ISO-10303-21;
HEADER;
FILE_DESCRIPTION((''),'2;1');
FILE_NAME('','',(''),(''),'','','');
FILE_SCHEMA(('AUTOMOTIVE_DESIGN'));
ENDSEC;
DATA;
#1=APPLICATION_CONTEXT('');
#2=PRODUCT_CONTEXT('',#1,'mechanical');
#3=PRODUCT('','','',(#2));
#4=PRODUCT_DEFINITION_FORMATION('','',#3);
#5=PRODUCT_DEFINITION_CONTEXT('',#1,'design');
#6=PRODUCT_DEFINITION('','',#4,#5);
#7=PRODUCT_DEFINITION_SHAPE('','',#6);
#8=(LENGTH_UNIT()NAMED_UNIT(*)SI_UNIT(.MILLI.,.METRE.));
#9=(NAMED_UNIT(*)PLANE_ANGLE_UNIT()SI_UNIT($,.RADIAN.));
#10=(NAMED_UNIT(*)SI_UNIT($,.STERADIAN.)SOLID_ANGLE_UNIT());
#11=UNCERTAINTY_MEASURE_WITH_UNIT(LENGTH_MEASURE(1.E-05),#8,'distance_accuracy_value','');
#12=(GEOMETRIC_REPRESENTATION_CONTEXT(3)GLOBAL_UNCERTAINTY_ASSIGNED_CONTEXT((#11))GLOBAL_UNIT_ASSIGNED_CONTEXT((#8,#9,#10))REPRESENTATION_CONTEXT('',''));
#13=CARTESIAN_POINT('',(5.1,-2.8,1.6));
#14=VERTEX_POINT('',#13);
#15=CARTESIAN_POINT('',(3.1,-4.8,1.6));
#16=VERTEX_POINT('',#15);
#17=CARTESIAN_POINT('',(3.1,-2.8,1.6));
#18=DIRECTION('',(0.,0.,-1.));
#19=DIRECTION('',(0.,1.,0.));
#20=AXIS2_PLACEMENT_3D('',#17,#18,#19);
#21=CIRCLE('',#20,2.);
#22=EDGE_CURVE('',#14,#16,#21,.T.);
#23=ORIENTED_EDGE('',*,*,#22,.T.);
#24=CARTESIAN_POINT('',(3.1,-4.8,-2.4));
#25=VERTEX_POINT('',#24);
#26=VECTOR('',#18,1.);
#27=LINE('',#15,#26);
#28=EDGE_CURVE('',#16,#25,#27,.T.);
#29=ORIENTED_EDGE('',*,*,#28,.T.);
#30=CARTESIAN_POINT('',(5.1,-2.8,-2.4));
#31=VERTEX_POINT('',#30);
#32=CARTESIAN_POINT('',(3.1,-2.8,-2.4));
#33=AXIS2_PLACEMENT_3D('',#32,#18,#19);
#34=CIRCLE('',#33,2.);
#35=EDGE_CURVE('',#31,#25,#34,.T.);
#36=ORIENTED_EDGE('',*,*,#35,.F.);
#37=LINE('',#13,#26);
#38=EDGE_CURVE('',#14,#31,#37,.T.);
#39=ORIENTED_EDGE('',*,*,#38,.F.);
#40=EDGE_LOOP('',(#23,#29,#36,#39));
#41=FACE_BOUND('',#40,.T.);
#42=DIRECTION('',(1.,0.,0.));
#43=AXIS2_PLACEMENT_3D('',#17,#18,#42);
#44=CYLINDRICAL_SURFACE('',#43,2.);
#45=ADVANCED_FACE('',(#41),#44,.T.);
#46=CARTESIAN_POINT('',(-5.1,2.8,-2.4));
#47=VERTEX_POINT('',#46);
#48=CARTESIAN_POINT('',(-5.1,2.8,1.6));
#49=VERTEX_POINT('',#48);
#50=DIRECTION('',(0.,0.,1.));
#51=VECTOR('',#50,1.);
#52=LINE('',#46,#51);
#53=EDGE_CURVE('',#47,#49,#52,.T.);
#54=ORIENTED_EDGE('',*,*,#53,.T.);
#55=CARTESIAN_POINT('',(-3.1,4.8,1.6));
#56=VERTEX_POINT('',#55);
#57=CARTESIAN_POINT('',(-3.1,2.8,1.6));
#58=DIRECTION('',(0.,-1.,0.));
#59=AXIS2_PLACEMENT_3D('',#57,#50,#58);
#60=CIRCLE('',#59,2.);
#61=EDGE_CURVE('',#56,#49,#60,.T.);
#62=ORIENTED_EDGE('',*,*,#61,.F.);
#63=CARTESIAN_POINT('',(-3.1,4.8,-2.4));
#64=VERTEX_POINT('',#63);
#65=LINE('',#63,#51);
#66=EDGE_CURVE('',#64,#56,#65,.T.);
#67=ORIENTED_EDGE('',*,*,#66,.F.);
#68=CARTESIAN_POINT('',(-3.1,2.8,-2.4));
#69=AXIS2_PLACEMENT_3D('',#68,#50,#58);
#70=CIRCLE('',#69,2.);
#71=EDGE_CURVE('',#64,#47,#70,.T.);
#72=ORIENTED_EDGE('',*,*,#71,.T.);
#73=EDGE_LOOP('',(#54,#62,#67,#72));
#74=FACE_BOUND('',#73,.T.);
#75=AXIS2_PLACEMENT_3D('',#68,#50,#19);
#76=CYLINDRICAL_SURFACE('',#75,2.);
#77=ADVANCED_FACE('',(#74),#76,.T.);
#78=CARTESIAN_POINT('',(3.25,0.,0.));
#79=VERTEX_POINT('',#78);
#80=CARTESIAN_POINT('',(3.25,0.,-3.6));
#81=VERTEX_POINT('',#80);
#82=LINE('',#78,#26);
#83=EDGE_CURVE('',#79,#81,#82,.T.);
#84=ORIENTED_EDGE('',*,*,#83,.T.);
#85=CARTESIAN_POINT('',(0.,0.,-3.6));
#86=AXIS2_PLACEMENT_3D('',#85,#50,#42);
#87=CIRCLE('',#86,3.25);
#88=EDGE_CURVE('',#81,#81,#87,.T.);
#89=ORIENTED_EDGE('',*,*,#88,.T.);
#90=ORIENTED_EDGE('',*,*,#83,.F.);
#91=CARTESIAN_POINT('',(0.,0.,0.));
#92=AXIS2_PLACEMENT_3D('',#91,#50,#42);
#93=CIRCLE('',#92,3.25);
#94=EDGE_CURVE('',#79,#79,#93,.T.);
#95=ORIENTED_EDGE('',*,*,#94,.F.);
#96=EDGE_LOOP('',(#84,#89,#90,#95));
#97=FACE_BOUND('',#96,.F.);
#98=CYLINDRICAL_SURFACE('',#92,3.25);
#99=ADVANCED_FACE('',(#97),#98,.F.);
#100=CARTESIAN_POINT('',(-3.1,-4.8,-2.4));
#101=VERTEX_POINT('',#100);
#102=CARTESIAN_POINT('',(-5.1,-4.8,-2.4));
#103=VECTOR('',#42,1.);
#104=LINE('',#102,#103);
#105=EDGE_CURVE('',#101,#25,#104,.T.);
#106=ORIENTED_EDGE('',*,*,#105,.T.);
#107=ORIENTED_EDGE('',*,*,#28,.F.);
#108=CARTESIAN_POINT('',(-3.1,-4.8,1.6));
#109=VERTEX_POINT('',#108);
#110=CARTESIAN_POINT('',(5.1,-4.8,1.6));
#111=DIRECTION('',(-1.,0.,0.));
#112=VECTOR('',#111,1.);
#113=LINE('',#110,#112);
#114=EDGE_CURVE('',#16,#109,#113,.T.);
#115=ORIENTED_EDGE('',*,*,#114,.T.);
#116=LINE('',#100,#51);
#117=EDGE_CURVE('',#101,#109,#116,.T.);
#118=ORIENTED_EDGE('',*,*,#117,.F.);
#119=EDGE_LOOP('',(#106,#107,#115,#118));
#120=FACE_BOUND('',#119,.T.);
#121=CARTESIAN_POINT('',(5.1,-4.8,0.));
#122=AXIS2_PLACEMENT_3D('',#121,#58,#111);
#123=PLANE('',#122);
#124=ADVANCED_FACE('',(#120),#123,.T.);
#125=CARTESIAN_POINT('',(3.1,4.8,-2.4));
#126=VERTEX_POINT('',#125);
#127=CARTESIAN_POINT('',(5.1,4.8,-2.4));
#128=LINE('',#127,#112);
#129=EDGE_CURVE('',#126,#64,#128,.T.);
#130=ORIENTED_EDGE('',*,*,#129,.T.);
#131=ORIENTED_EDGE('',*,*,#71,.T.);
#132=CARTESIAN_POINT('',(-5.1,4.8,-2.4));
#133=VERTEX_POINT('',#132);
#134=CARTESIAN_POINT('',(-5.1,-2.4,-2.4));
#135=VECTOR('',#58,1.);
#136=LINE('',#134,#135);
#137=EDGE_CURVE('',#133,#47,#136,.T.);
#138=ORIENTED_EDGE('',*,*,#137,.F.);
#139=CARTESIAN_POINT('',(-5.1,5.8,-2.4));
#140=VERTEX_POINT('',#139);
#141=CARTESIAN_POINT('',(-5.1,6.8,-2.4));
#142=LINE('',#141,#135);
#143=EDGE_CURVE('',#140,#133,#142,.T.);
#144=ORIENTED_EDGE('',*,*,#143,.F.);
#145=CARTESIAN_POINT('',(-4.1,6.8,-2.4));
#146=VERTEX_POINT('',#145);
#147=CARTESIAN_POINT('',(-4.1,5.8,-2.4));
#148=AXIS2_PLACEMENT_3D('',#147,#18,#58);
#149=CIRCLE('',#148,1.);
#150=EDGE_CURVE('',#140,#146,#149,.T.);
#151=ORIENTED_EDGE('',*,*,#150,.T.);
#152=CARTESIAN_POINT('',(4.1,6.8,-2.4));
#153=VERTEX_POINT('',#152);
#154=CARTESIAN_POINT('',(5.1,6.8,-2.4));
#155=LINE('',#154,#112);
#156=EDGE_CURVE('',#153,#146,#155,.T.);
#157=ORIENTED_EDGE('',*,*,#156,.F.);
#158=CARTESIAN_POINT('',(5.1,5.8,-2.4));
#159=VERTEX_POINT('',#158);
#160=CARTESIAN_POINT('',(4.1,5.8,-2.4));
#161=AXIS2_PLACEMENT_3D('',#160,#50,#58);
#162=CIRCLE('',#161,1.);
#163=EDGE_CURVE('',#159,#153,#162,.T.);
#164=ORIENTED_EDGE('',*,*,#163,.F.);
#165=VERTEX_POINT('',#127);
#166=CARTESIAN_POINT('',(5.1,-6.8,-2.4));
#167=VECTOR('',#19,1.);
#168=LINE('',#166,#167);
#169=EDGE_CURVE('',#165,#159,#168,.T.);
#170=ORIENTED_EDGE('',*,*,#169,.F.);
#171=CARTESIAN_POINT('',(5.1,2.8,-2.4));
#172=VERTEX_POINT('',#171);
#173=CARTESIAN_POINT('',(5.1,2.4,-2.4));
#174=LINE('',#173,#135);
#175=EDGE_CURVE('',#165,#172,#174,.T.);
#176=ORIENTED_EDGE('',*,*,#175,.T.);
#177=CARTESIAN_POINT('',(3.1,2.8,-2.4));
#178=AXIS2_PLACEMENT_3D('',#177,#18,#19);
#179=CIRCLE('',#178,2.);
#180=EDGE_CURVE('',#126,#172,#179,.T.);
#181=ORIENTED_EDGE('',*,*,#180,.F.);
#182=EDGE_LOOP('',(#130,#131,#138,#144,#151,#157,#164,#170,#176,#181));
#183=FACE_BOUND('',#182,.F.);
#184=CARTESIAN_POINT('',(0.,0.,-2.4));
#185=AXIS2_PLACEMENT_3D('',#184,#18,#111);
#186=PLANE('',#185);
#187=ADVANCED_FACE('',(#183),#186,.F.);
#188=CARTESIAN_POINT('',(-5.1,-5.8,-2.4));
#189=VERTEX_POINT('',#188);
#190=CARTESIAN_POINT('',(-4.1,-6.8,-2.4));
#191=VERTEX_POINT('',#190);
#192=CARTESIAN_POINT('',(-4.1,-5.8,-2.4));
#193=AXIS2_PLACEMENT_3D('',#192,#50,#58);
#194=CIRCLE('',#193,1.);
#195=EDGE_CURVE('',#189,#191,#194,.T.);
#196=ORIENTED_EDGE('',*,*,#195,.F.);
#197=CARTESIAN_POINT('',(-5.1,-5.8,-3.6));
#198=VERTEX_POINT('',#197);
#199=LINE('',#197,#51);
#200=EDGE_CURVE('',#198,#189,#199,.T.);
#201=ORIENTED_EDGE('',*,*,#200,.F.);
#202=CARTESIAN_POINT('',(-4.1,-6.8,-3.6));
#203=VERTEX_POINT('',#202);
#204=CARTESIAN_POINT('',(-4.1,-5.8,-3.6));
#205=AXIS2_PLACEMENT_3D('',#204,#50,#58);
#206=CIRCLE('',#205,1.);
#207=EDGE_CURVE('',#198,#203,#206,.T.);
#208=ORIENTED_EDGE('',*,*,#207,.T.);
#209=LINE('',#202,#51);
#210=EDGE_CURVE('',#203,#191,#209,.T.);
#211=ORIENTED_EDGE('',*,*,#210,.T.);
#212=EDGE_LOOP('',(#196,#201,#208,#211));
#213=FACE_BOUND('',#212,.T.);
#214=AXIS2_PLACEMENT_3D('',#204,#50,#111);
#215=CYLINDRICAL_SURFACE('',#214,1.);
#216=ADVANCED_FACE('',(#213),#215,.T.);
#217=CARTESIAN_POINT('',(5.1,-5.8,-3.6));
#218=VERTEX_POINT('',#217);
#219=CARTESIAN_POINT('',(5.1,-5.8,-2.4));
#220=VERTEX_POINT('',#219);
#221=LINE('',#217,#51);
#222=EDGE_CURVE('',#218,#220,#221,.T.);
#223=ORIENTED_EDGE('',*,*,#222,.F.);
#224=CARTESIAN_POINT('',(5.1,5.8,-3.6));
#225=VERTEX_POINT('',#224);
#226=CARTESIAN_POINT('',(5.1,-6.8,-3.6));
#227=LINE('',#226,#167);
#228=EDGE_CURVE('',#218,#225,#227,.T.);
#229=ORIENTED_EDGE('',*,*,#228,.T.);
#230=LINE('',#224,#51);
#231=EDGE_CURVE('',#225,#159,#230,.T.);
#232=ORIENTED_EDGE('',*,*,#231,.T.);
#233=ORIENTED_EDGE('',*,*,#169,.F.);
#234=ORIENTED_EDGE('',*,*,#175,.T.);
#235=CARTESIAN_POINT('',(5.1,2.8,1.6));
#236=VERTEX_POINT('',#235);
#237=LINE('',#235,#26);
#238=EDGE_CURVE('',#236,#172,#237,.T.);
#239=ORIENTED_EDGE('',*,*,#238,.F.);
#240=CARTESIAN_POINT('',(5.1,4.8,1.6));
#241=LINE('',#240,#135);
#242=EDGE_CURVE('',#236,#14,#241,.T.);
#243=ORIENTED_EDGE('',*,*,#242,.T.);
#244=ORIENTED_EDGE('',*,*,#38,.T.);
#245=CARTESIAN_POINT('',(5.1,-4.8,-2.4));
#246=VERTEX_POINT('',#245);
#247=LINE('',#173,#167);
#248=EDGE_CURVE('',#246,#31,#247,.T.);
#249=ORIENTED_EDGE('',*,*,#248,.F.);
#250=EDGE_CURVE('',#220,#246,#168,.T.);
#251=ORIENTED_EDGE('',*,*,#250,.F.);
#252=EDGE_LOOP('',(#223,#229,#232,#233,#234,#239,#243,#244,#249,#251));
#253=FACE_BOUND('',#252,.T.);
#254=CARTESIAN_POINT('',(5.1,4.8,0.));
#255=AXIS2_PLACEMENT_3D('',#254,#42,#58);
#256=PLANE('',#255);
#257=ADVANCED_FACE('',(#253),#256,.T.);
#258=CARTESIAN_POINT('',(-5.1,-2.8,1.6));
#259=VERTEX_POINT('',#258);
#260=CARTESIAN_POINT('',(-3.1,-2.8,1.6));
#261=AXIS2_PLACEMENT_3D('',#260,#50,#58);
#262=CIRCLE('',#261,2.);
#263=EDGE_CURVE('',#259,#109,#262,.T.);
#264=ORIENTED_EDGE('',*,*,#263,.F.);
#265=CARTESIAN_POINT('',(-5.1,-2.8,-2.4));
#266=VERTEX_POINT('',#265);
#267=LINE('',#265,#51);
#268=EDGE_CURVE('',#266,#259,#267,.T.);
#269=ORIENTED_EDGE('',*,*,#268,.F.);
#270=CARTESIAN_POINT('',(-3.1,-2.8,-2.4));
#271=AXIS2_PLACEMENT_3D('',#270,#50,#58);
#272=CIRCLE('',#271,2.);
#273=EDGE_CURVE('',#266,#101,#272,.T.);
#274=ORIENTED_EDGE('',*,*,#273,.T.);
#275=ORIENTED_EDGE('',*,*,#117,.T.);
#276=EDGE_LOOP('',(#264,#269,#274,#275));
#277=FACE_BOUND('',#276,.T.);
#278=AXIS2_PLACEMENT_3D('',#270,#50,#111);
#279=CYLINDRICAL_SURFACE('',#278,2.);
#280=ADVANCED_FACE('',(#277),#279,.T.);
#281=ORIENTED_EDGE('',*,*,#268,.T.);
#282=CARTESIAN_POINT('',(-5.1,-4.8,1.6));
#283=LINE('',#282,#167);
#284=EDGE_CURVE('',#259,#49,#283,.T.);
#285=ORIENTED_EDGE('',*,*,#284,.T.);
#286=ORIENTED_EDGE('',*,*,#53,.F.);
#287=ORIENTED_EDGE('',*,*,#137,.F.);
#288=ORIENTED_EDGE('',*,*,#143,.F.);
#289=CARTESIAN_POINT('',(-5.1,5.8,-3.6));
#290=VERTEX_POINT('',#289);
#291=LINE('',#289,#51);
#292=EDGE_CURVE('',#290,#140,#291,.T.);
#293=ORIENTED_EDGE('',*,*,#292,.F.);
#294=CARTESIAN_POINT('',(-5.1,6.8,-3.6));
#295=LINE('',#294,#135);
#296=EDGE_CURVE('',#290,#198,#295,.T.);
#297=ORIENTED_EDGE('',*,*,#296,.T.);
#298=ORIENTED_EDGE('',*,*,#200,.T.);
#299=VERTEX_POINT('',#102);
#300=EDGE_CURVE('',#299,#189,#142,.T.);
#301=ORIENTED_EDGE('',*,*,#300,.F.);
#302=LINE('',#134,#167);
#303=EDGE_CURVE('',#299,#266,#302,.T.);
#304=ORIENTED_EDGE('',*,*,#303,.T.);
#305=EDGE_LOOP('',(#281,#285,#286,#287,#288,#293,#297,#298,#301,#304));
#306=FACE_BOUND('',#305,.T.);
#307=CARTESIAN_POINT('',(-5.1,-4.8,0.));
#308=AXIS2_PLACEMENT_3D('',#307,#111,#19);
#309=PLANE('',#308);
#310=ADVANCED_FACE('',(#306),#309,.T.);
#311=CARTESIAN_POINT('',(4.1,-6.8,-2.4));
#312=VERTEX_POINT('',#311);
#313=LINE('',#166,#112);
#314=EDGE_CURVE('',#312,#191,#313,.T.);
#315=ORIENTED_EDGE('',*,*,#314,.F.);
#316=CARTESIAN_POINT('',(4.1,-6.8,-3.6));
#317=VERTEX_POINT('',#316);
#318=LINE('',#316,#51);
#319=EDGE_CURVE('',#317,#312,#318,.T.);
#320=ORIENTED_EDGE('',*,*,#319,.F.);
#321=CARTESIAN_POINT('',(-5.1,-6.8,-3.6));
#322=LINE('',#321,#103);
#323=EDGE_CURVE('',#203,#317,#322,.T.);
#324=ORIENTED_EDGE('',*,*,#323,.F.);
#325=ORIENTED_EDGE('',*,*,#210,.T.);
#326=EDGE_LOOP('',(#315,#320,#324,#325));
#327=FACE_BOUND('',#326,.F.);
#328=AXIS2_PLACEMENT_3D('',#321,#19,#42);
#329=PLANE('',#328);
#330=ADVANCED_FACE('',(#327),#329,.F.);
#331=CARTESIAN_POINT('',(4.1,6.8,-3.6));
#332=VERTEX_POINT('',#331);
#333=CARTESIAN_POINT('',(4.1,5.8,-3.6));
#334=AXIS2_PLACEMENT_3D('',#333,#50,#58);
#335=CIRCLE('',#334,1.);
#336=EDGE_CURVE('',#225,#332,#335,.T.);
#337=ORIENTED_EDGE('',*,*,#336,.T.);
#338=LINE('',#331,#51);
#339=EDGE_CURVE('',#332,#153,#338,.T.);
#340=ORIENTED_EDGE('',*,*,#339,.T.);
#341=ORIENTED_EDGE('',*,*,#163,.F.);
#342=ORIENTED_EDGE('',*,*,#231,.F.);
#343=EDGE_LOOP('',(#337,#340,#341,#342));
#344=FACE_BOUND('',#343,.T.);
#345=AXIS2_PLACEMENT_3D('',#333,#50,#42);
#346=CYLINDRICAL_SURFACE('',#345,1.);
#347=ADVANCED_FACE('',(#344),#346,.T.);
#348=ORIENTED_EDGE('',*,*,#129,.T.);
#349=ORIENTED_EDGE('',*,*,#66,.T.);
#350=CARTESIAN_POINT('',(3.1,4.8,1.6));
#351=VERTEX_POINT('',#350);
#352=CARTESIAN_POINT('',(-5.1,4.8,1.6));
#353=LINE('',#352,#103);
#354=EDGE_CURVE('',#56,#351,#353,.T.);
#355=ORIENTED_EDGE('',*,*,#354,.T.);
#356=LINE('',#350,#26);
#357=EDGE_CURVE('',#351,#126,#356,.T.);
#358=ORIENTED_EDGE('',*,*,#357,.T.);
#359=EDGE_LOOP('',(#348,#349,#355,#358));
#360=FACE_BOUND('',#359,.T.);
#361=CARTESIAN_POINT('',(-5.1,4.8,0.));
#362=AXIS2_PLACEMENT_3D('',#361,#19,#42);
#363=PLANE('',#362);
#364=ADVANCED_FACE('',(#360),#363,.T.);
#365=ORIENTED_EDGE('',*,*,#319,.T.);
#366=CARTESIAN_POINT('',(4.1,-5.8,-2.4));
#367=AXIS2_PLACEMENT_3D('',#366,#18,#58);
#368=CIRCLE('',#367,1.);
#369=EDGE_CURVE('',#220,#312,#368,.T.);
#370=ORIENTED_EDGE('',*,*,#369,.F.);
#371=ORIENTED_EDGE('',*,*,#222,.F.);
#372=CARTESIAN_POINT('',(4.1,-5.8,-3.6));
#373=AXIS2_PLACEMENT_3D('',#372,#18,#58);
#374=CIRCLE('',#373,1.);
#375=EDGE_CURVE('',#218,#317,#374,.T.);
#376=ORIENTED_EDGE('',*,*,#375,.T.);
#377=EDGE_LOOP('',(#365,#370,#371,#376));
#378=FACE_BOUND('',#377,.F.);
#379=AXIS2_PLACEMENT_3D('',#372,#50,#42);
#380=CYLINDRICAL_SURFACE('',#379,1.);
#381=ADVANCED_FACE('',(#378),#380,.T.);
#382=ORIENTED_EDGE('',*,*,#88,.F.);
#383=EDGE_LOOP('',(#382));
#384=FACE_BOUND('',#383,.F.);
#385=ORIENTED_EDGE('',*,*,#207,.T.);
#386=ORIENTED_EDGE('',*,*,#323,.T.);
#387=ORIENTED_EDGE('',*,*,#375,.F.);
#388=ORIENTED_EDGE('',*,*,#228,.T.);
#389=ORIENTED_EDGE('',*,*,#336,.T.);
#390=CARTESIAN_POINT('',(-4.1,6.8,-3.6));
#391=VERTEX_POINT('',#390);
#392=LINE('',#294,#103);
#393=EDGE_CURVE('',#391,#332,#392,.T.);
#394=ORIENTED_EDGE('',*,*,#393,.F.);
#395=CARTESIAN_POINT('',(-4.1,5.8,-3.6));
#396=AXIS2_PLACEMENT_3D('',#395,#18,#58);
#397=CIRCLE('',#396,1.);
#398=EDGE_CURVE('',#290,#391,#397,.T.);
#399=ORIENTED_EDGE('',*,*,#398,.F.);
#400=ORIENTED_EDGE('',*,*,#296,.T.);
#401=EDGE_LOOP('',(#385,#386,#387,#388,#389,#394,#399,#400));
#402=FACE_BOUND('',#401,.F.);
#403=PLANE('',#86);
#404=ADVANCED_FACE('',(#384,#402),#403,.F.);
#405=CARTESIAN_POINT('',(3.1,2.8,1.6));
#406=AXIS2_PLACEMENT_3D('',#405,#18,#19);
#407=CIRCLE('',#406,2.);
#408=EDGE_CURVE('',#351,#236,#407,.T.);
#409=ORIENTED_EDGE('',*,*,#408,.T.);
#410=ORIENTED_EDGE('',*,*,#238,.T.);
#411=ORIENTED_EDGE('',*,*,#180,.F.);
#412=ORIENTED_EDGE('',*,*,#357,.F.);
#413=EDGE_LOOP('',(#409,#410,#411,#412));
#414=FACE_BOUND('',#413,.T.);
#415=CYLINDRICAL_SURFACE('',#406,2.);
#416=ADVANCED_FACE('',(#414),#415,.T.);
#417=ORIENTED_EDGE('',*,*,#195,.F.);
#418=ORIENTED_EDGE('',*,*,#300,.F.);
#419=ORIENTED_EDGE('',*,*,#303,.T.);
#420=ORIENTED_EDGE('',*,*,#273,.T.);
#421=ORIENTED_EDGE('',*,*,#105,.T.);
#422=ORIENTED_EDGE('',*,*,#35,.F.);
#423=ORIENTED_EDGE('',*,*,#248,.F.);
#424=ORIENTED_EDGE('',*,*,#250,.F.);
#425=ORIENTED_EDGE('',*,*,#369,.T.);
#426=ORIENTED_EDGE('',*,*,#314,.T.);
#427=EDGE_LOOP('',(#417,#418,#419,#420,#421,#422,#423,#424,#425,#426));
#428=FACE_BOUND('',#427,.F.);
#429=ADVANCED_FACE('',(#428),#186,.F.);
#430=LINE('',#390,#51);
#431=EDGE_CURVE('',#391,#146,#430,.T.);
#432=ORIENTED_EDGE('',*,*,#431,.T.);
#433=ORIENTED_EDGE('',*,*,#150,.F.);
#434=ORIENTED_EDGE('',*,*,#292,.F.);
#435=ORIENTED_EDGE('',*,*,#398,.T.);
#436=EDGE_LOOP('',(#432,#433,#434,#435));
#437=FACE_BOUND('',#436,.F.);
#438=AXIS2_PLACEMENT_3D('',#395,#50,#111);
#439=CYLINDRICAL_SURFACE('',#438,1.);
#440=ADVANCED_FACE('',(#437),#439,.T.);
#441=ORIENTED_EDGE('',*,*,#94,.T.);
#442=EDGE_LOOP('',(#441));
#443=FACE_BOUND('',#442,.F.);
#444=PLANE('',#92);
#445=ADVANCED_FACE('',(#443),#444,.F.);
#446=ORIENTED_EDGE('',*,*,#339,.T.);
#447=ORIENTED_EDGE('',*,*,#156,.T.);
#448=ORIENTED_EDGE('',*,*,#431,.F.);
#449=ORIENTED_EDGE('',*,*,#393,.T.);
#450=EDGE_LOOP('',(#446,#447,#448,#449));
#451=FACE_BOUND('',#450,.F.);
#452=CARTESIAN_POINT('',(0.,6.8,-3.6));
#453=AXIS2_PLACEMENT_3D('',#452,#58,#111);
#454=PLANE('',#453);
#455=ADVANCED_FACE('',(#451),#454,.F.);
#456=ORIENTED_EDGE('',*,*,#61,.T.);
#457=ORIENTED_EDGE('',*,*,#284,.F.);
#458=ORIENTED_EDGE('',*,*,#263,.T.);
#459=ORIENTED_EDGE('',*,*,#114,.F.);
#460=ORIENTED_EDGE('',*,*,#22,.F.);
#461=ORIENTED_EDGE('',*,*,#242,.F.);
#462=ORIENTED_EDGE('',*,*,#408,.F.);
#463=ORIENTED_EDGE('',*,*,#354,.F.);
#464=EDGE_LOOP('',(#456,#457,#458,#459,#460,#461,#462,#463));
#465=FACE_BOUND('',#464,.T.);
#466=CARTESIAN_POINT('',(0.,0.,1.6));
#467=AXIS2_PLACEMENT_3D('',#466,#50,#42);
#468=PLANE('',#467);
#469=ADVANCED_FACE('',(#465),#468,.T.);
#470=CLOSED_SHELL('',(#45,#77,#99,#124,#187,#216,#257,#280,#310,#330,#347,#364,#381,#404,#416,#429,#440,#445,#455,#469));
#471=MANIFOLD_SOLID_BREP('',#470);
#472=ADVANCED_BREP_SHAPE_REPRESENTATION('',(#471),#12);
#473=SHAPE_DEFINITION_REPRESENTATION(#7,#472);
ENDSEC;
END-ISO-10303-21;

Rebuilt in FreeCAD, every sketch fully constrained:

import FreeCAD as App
import Part
import Sketcher


def edges_at(feature, points):
    """Names of the edges that pass closest to the given points."""
    edges = feature.Shape.Edges
    near = lambda p: min(range(len(edges)), key=lambda i: edges[i].distToShape(Part.Vertex(*p))[0])
    return sorted({f"Edge{near(p) + 1}" for p in points})


def add_polygon(sketch, points):
    """Adds a closed chain of lines whose ends are joined by coincident constraints."""
    first, n = sketch.GeometryCount, len(points)
    for a, b in zip(points, points[1:] + points[:1]):
        sketch.addGeometry(Part.LineSegment(App.Vector(*a, 0), App.Vector(*b, 0)), False)
    for i in range(n):
        sketch.addConstraint(Sketcher.Constraint("Coincident", first + i, 2, first + (i + 1) % n, 1))

doc = App.newDocument("Part")
body = doc.addObject("PartDesign::Body", "Body")

# Sketch on XY plane
sketch1 = body.newObject("Sketcher::SketchObject", "Sketch")
sketch1.AttachmentSupport = (doc.getObject("XY_Plane"), [""])
sketch1.MapMode = "FlatFace"
add_polygon(sketch1, [(5.1, 4.8), (-5.1, 4.8), (-5.1, -4.8), (5.1, -4.8)])  # lines 0-3
sketch1.addConstraint([
    Sketcher.Constraint("Horizontal", 0),
    Sketcher.Constraint("Vertical", 1),
    Sketcher.Constraint("Horizontal", 2),
    Sketcher.Constraint("Vertical", 3),
    Sketcher.Constraint("Symmetric", 0, 2, 2, 2, -1, 1),
    Sketcher.Constraint("DistanceX", 0, 2, -1, 1, 5.1),
    Sketcher.Constraint("DistanceY", -1, 1, 0, 2, 4.8),
])
pad1 = body.newObject("PartDesign::Pad", "Pad")
pad1.Profile = sketch1
pad1.Type = "TwoLengths"
pad1.Length = 1.6
pad1.Length2 = 3.6

# Sketch on XY plane
sketch2 = body.newObject("Sketcher::SketchObject", "Sketch001")
sketch2.AttachmentSupport = (doc.getObject("XY_Plane"), [""])
sketch2.MapMode = "FlatFace"
sketch2.AttachmentOffset = App.Placement(App.Vector(0, 0, -3.6), App.Rotation())
add_polygon(sketch2, [(-5.1, 4.8), (-5.1, 6.8), (5.1, 6.8), (5.1, 4.8)])  # lines 0-3
add_polygon(sketch2, [(-5.1, -6.8), (-5.1, -4.8), (5.1, -4.8), (5.1, -6.8)])  # lines 4-7
sketch2.addConstraint([
    Sketcher.Constraint("Vertical", 0),
    Sketcher.Constraint("Horizontal", 1),
    Sketcher.Constraint("Vertical", 2),
    Sketcher.Constraint("Horizontal", 3),
    Sketcher.Constraint("Vertical", 4),
    Sketcher.Constraint("Horizontal", 5),
    Sketcher.Constraint("Vertical", 6),
    Sketcher.Constraint("Horizontal", 7),
    Sketcher.Constraint("Symmetric", 2, 2, 4, 2, -1, 1),
    Sketcher.Constraint("Symmetric", 0, 2, 6, 2, -1, 1),
    Sketcher.Constraint("Vertical", 3, 2, 4, 2),
    Sketcher.Constraint("DistanceY", 0, 1, 0, 2, 2.0),
    Sketcher.Constraint("DistanceX", 0, 2, -1, 1, 5.1),
    Sketcher.Constraint("DistanceY", -1, 1, 0, 2, 6.8),
])
pad2 = body.newObject("PartDesign::Pad", "Pad001")
pad2.Profile = sketch2
pad2.Length = 1.2

# Sketch on XY plane
sketch3 = body.newObject("Sketcher::SketchObject", "Sketch002")
sketch3.AttachmentSupport = (doc.getObject("XY_Plane"), [""])
sketch3.MapMode = "FlatFace"
sketch3.addGeometry(Part.Circle(App.Vector(0, 0, 0), App.Vector(0, 0, 1), 3.25), False)
sketch3.addConstraint([
    Sketcher.Constraint("Coincident", 0, 3, -1, 1),
    Sketcher.Constraint("Diameter", 0, 6.5),
])
pocket1 = body.newObject("PartDesign::Pocket", "Pocket")
pocket1.Profile = sketch3
pocket1.Type = "ThroughAll"
doc.recompute()

fillet = body.newObject("PartDesign::Fillet", "Fillet")
fillet.Base = (pocket1, edges_at(pocket1, [
    (5.1, -4.8, -0.4),
    (5.1, 4.8, -0.4),
    (-5.1, 4.8, -0.4),
    (-5.1, -4.8, -0.4),
]))
fillet.Radius = 2
doc.recompute()

fillet2 = body.newObject("PartDesign::Fillet", "Fillet001")
fillet2.Base = (fillet, edges_at(fillet, [
    (5.1, -6.8, -3),
    (-5.1, -6.8, -3),
    (5.1, 6.8, -3),
    (-5.1, 6.8, -3),
]))
fillet2.Radius = 1

doc.recompute()
